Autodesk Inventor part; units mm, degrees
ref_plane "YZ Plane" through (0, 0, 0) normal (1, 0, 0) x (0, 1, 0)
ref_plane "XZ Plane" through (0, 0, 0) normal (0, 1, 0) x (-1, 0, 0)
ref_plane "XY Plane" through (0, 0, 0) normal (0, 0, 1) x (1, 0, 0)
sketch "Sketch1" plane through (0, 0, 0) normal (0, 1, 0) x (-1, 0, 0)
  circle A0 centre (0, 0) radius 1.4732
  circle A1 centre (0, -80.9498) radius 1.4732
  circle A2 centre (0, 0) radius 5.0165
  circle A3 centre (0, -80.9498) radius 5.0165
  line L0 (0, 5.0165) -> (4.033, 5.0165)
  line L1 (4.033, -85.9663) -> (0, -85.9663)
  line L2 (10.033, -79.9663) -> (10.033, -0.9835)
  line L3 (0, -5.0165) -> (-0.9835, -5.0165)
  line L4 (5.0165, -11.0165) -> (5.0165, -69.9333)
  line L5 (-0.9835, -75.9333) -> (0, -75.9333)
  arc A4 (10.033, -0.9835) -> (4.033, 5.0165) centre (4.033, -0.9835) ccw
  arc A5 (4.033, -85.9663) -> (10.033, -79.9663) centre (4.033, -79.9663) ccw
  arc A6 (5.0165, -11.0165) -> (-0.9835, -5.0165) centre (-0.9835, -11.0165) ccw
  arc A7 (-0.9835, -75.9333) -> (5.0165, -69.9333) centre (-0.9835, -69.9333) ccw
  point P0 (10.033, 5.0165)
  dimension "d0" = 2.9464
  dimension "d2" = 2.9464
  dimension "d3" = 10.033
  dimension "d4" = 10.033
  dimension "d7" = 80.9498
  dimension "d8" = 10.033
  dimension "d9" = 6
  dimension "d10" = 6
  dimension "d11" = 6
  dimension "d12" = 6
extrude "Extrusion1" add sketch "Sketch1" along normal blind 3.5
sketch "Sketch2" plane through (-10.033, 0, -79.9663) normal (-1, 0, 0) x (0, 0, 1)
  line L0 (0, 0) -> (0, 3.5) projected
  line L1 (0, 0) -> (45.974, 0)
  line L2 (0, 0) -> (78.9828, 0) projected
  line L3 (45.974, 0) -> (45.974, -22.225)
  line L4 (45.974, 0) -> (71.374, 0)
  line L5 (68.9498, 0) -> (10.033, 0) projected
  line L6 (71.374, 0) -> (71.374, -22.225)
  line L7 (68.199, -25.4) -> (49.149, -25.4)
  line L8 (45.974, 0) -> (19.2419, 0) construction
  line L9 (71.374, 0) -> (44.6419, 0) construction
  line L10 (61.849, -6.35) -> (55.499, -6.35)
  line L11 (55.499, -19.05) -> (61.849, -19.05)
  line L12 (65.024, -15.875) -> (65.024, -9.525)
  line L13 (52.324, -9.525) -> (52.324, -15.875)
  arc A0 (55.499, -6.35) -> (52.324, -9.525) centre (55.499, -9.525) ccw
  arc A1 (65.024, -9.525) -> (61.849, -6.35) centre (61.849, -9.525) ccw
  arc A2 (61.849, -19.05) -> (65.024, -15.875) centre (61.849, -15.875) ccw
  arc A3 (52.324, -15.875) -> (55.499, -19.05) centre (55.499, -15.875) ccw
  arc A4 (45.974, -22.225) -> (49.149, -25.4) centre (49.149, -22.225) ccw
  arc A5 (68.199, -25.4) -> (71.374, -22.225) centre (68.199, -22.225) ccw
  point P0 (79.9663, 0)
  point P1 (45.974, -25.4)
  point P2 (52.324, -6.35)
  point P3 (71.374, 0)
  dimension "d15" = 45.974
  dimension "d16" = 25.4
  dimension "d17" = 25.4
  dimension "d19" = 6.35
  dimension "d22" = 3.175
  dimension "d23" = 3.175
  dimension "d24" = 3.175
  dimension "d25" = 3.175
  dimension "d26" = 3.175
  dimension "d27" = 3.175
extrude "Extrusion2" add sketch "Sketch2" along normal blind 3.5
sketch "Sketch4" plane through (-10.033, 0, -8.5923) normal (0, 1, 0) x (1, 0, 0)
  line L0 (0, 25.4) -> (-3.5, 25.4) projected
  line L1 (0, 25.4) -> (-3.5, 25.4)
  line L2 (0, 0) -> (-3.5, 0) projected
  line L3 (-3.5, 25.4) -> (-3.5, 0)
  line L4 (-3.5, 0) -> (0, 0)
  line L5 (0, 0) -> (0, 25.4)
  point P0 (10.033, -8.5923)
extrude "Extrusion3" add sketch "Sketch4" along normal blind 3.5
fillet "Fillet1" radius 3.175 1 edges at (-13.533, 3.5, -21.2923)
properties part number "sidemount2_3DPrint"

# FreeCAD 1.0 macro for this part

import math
import FreeCAD as App
import Part
import Sketcher

V = App.Vector
Q = App.Units.Quantity


def edges_at(feature, points):
    """Names of the edges that pass closest to the given points."""
    edges = feature.Shape.Edges
    near = lambda p: min(range(len(edges)), key=lambda i: edges[i].distToShape(Part.Vertex(*p))[0])
    return sorted({f"Edge{near(p) + 1}" for p in points})


def add_polygon(sketch, points):
    """Adds a closed chain of lines whose ends are joined by coincident constraints."""
    first, n = sketch.GeometryCount, len(points)
    for a, b in zip(points, points[1:] + points[:1]):
        sketch.addGeometry(Part.LineSegment(App.Vector(*a, 0), App.Vector(*b, 0)), False)
    for i in range(n):
        sketch.addConstraint(Sketcher.Constraint("Coincident", first + i, 2, first + (i + 1) % n, 1))

doc = App.newDocument("Part")
params = doc.addObject("Spreadsheet::Sheet", "Params")
for row, (alias, value) in enumerate([
    ("sketch1_diameter", "0.116 in"),
    ("pad1_length", "0.1377953 in"),
    ("sketch2_height", "1 in"),
    ("sketch2_radius", "0.125 in"),
    ("sketch2_width", "0.25 in"),
    ("pad2_length", "0.1377953 in"),
    ("sketch3_height", "1 in"),
    ("pad3_length", "0.1377953 in"),
    ("fillet_radius", "0.125 in"),
], start=1):
    params.set(f"A{row}", alias)
    params.set(f"B{row}", "=" + value)
    params.setAlias(f"B{row}", alias)

body = doc.addObject("PartDesign::Body", "Body")
body.AllowCompound = True

sketch1 = body.newObject("Sketcher::SketchObject", "Sketch")
sketch1.AttachmentSupport = (doc.getObject("XZ_Plane"), [""])
sketch1.MapMode = "FlatFace"
sketch1.addGeometry(Part.ArcOfCircle(Part.Circle(V(0, 0, 0), V(0, 0, 1), 5), math.radians(-90), math.radians(90)), False)
sketch1.addGeometry(Part.LineSegment(V(0, -5, 0), V(1, -5, 0)), False)
sketch1.addGeometry(Part.ArcOfCircle(Part.Circle(V(1, -11, 0), V(0, 0, 1), 6), math.radians(90), math.radians(180)), False)
sketch1.addGeometry(Part.LineSegment(V(-5, -11, 0), V(-5, -69.9, 0)), False)
sketch1.addGeometry(Part.ArcOfCircle(Part.Circle(V(1, -69.9, 0), V(0, 0, 1), 6), math.radians(180), math.radians(270)), False)
sketch1.addGeometry(Part.LineSegment(V(1, -75.9, 0), V(0, -75.9, 0)), False)
sketch1.addGeometry(Part.ArcOfCircle(Part.Circle(V(0, -80.9, 0), V(0, 0, 1), 5), math.radians(-90), math.radians(90)), False)
sketch1.addGeometry(Part.LineSegment(V(0, -86, 0), V(-4, -86, 0)), False)
sketch1.addGeometry(Part.ArcOfCircle(Part.Circle(V(-4, -80, 0), V(0, 0, 1), 6), math.radians(180), math.radians(270)), False)
sketch1.addGeometry(Part.LineSegment(V(-10, -80, 0), V(-10, -1, 0)), False)
sketch1.addGeometry(Part.ArcOfCircle(Part.Circle(V(-4, -1, 0), V(0, 0, 1), 6), math.radians(90), math.radians(180)), False)
sketch1.addGeometry(Part.LineSegment(V(-4, 5, 0), V(0, 5, 0)), False)
sketch1.addGeometry(Part.Circle(V(0, 0, 0), V(0, 0, 1), 1.5), False)
sketch1.addGeometry(Part.Circle(V(0, -80.9, 0), V(0, 0, 1), 1.5), False)
sketch1.addConstraint(Sketcher.Constraint("Tangent", 0, 1, 1, 1))
sketch1.addConstraint(Sketcher.Constraint("Tangent", 1, 2, 2, 1))
sketch1.addConstraint(Sketcher.Constraint("Tangent", 2, 2, 3, 1))
sketch1.addConstraint(Sketcher.Constraint("Tangent", 3, 2, 4, 1))
sketch1.addConstraint(Sketcher.Constraint("Tangent", 4, 2, 5, 1))
sketch1.addConstraint(Sketcher.Constraint("Tangent", 5, 2, 6, 2))
sketch1.addConstraint(Sketcher.Constraint("Tangent", 6, 1, 7, 1))
sketch1.addConstraint(Sketcher.Constraint("Tangent", 7, 2, 8, 2))
sketch1.addConstraint(Sketcher.Constraint("Tangent", 8, 1, 9, 1))
sketch1.addConstraint(Sketcher.Constraint("Tangent", 9, 2, 10, 2))
sketch1.addConstraint(Sketcher.Constraint("Tangent", 10, 1, 11, 1))
sketch1.addConstraint(Sketcher.Constraint("Tangent", 11, 2, 0, 2))
sketch1.addConstraint(Sketcher.Constraint("Horizontal", 1))
sketch1.addConstraint(Sketcher.Constraint("Vertical", 3))
sketch1.addConstraint(Sketcher.Constraint("Horizontal", 5))
sketch1.addConstraint(Sketcher.Constraint("Horizontal", 7))
sketch1.addConstraint(Sketcher.Constraint("Vertical", 9))
sketch1.addConstraint(Sketcher.Constraint("Horizontal", 11))
sketch1.addConstraint(Sketcher.Constraint("Coincident", 0, 3, -1, 1))
sketch1.addConstraint(Sketcher.Constraint("Coincident", 12, 3, -1, 1))
sketch1.addConstraint(Sketcher.Constraint("Coincident", 13, 3, 6, 3))
sketch1.addConstraint(Sketcher.Constraint("Equal", 2, 4))
sketch1.addConstraint(Sketcher.Constraint("Equal", 0, 6))
sketch1.addConstraint(Sketcher.Constraint("Equal", 4, 8))
sketch1.addConstraint(Sketcher.Constraint("Equal", 8, 10))
sketch1.addConstraint(Sketcher.Constraint("Equal", 12, 13))
sketch1.addConstraint(Sketcher.Constraint("PointOnObject", 6, 3, -2))
sketch1.addConstraint(Sketcher.Constraint("Diameter", 12, Q("0.116 in")))
sketch1.addConstraint(Sketcher.Constraint("Radius", 0, Q("0.1975 in")))
sketch1.addConstraint(Sketcher.Constraint("Radius", 2, Q("6 mm")))
sketch1.addConstraint(Sketcher.Constraint("DistanceY", 6, 3, -1, 1, Q("3.187 in")))
sketch1.addConstraint(Sketcher.Constraint("DistanceX", 8, 1, -1, 1, Q("0.395 in")))
sketch1.addConstraint(Sketcher.Constraint("DistanceX", 1, 1, 1, 2, Q("0.9835 mm")))
sketch1.setExpression("Constraints[27]", "Params.sketch1_diameter")
pad1 = body.newObject("PartDesign::Pad", "Pad")
pad1.Profile = sketch1
pad1.setExpression("Length", "Params.pad1_length")
pad1.Reversed = True

sketch2 = body.newObject("Sketcher::SketchObject", "Sketch001")
sketch2.AttachmentSupport = (doc.getObject("YZ_Plane"), [""])
sketch2.MapMode = "FlatFace"
sketch2.AttachmentOffset = App.Placement(V(0, 0, -0.395 * 25.4), App.Rotation())
sketch2.addGeometry(Part.LineSegment(V(0, -8.6, 0), V(0, -34, 0)), False)
sketch2.addGeometry(Part.LineSegment(V(0, -34, 0), V(-22.2, -34, 0)), False)
sketch2.addGeometry(Part.ArcOfCircle(Part.Circle(V(-22.2, -30.8, 0), V(0, 0, 1), 3.2), math.radians(180), math.radians(270)), False)
sketch2.addGeometry(Part.LineSegment(V(-25.4, -30.8, 0), V(-25.4, -11.8, 0)), False)
sketch2.addGeometry(Part.ArcOfCircle(Part.Circle(V(-22.2, -11.8, 0), V(0, 0, 1), 3.2), math.radians(90), math.radians(180)), False)
sketch2.addGeometry(Part.LineSegment(V(-22.2, -8.6, 0), V(0, -8.6, 0)), False)
sketch2.addGeometry(Part.LineSegment(V(-6.3, -24.5, 0), V(-6.3, -18.1, 0)), False)
sketch2.addGeometry(Part.ArcOfCircle(Part.Circle(V(-9.5, -18.1, 0), V(0, 0, 1), 3.2), math.radians(0), math.radians(90)), False)
sketch2.addGeometry(Part.LineSegment(V(-9.5, -14.9, 0), V(-15.9, -14.9, 0)), False)
sketch2.addGeometry(Part.ArcOfCircle(Part.Circle(V(-15.9, -18.1, 0), V(0, 0, 1), 3.2), math.radians(90), math.radians(180)), False)
sketch2.addGeometry(Part.LineSegment(V(-19.1, -18.1, 0), V(-19.1, -24.5, 0)), False)
sketch2.addGeometry(Part.ArcOfCircle(Part.Circle(V(-15.9, -24.5, 0), V(0, 0, 1), 3.2), math.radians(180), math.radians(270)), False)
sketch2.addGeometry(Part.LineSegment(V(-15.9, -27.6, 0), V(-9.5, -27.6, 0)), False)
sketch2.addGeometry(Part.ArcOfCircle(Part.Circle(V(-9.5, -24.5, 0), V(0, 0, 1), 3.2), math.radians(-90), math.radians(0)), False)
sketch2.addConstraint(Sketcher.Constraint("Coincident", 0, 2, 1, 1))
sketch2.addConstraint(Sketcher.Constraint("Tangent", 1, 2, 2, 2))
sketch2.addConstraint(Sketcher.Constraint("Tangent", 2, 1, 3, 1))
sketch2.addConstraint(Sketcher.Constraint("Tangent", 3, 2, 4, 2))
sketch2.addConstraint(Sketcher.Constraint("Tangent", 4, 1, 5, 1))
sketch2.addConstraint(Sketcher.Constraint("Coincident", 5, 2, 0, 1))
sketch2.addConstraint(Sketcher.Constraint("Tangent", 6, 2, 7, 1))
sketch2.addConstraint(Sketcher.Constraint("Tangent", 7, 2, 8, 1))
sketch2.addConstraint(Sketcher.Constraint("Tangent", 8, 2, 9, 1))
sketch2.addConstraint(Sketcher.Constraint("Tangent", 9, 2, 10, 1))
sketch2.addConstraint(Sketcher.Constraint("Tangent", 10, 2, 11, 1))
sketch2.addConstraint(Sketcher.Constraint("Tangent", 11, 2, 12, 1))
sketch2.addConstraint(Sketcher.Constraint("Tangent", 12, 2, 13, 1))
sketch2.addConstraint(Sketcher.Constraint("Tangent", 13, 2, 6, 1))
sketch2.addConstraint(Sketcher.Constraint("Vertical", 0))
sketch2.addConstraint(Sketcher.Constraint("Horizontal", 1))
sketch2.addConstraint(Sketcher.Constraint("Vertical", 3))
sketch2.addConstraint(Sketcher.Constraint("Horizontal", 5))
sketch2.addConstraint(Sketcher.Constraint("Vertical", 6))
sketch2.addConstraint(Sketcher.Constraint("Horizontal", 8))
sketch2.addConstraint(Sketcher.Constraint("Vertical", 10))
sketch2.addConstraint(Sketcher.Constraint("Horizontal", 12))
sketch2.addConstraint(Sketcher.Constraint("Equal", 2, 4))
sketch2.addConstraint(Sketcher.Constraint("Equal", 4, 7))
sketch2.addConstraint(Sketcher.Constraint("Equal", 7, 9))
sketch2.addConstraint(Sketcher.Constraint("Equal", 9, 11))
sketch2.addConstraint(Sketcher.Constraint("Equal", 11, 13))
sketch2.addConstraint(Sketcher.Constraint("PointOnObject", 0, 2, -2))
sketch2.addConstraint(Sketcher.Constraint("Equal", 12, 6))
sketch2.addConstraint(Sketcher.Constraint("DistanceY", 0, 2, 0, 1, Q("1 in")))
sketch2.addConstraint(Sketcher.Constraint("DistanceX", 2, 1, -1, 1, Q("1 in")))
sketch2.addConstraint(Sketcher.Constraint("Radius", 2, Q("0.125 in")))
sketch2.addConstraint(Sketcher.Constraint("DistanceX", 8, 2, 8, 1, Q("0.25 in")))
sketch2.addConstraint(Sketcher.Constraint("DistanceX", 6, 2, -1, 1, Q("0.25 in")))
sketch2.addConstraint(Sketcher.Constraint("DistanceY", 7, 3, 4, 3, Q("0.25 in")))
sketch2.addConstraint(Sketcher.Constraint("DistanceY", 2, 3, -1, 1, Q("30.8173 mm")))
sketch2.setExpression("Constraints[29]", "Params.sketch2_height")
sketch2.setExpression("Constraints[31]", "Params.sketch2_radius")
sketch2.setExpression("Constraints[32]", "Params.sketch2_width")
pad2 = body.newObject("PartDesign::Pad", "Pad001")
pad2.Profile = sketch2
pad2.setExpression("Length", "Params.pad2_length")
pad2.Reversed = True

sketch3 = body.newObject("Sketcher::SketchObject", "Sketch002")
sketch3.AttachmentSupport = (doc.getObject("XZ_Plane"), [""])
sketch3.MapMode = "FlatFace"
add_polygon(sketch3, [(-10, -8.6), (-10, -34), (-13.5, -34), (-13.5, -8.6)])
sketch3.addConstraint(Sketcher.Constraint("Vertical", 0))
sketch3.addConstraint(Sketcher.Constraint("Horizontal", 1))
sketch3.addConstraint(Sketcher.Constraint("Vertical", 2))
sketch3.addConstraint(Sketcher.Constraint("Horizontal", 3))
sketch3.addConstraint(Sketcher.Constraint("DistanceY", 0, 2, 0, 1, Q("1 in")))
sketch3.addConstraint(Sketcher.Constraint("DistanceX", 1, 2, 1, 1, Q("0.1378 in")))
sketch3.addConstraint(Sketcher.Constraint("DistanceX", 0, 2, -1, 1, Q("0.395 in")))
sketch3.addConstraint(Sketcher.Constraint("DistanceY", 0, 2, -1, 1, Q("33.9923 mm")))
sketch3.setExpression("Constraints[8]", "Params.sketch3_height")
pad3 = body.newObject("PartDesign::Pad", "Pad002")
pad3.Profile = sketch3
pad3.setExpression("Length", "Params.pad3_length")
pad3.Reversed = True
doc.recompute()

fillet = body.newObject("PartDesign::Fillet", "Fillet")
fillet.Base = (pad3, edges_at(pad3, [(-13.533, 3.5, -21.292)]))
fillet.setExpression("Radius", "Params.fillet_radius")

doc.recompute()
